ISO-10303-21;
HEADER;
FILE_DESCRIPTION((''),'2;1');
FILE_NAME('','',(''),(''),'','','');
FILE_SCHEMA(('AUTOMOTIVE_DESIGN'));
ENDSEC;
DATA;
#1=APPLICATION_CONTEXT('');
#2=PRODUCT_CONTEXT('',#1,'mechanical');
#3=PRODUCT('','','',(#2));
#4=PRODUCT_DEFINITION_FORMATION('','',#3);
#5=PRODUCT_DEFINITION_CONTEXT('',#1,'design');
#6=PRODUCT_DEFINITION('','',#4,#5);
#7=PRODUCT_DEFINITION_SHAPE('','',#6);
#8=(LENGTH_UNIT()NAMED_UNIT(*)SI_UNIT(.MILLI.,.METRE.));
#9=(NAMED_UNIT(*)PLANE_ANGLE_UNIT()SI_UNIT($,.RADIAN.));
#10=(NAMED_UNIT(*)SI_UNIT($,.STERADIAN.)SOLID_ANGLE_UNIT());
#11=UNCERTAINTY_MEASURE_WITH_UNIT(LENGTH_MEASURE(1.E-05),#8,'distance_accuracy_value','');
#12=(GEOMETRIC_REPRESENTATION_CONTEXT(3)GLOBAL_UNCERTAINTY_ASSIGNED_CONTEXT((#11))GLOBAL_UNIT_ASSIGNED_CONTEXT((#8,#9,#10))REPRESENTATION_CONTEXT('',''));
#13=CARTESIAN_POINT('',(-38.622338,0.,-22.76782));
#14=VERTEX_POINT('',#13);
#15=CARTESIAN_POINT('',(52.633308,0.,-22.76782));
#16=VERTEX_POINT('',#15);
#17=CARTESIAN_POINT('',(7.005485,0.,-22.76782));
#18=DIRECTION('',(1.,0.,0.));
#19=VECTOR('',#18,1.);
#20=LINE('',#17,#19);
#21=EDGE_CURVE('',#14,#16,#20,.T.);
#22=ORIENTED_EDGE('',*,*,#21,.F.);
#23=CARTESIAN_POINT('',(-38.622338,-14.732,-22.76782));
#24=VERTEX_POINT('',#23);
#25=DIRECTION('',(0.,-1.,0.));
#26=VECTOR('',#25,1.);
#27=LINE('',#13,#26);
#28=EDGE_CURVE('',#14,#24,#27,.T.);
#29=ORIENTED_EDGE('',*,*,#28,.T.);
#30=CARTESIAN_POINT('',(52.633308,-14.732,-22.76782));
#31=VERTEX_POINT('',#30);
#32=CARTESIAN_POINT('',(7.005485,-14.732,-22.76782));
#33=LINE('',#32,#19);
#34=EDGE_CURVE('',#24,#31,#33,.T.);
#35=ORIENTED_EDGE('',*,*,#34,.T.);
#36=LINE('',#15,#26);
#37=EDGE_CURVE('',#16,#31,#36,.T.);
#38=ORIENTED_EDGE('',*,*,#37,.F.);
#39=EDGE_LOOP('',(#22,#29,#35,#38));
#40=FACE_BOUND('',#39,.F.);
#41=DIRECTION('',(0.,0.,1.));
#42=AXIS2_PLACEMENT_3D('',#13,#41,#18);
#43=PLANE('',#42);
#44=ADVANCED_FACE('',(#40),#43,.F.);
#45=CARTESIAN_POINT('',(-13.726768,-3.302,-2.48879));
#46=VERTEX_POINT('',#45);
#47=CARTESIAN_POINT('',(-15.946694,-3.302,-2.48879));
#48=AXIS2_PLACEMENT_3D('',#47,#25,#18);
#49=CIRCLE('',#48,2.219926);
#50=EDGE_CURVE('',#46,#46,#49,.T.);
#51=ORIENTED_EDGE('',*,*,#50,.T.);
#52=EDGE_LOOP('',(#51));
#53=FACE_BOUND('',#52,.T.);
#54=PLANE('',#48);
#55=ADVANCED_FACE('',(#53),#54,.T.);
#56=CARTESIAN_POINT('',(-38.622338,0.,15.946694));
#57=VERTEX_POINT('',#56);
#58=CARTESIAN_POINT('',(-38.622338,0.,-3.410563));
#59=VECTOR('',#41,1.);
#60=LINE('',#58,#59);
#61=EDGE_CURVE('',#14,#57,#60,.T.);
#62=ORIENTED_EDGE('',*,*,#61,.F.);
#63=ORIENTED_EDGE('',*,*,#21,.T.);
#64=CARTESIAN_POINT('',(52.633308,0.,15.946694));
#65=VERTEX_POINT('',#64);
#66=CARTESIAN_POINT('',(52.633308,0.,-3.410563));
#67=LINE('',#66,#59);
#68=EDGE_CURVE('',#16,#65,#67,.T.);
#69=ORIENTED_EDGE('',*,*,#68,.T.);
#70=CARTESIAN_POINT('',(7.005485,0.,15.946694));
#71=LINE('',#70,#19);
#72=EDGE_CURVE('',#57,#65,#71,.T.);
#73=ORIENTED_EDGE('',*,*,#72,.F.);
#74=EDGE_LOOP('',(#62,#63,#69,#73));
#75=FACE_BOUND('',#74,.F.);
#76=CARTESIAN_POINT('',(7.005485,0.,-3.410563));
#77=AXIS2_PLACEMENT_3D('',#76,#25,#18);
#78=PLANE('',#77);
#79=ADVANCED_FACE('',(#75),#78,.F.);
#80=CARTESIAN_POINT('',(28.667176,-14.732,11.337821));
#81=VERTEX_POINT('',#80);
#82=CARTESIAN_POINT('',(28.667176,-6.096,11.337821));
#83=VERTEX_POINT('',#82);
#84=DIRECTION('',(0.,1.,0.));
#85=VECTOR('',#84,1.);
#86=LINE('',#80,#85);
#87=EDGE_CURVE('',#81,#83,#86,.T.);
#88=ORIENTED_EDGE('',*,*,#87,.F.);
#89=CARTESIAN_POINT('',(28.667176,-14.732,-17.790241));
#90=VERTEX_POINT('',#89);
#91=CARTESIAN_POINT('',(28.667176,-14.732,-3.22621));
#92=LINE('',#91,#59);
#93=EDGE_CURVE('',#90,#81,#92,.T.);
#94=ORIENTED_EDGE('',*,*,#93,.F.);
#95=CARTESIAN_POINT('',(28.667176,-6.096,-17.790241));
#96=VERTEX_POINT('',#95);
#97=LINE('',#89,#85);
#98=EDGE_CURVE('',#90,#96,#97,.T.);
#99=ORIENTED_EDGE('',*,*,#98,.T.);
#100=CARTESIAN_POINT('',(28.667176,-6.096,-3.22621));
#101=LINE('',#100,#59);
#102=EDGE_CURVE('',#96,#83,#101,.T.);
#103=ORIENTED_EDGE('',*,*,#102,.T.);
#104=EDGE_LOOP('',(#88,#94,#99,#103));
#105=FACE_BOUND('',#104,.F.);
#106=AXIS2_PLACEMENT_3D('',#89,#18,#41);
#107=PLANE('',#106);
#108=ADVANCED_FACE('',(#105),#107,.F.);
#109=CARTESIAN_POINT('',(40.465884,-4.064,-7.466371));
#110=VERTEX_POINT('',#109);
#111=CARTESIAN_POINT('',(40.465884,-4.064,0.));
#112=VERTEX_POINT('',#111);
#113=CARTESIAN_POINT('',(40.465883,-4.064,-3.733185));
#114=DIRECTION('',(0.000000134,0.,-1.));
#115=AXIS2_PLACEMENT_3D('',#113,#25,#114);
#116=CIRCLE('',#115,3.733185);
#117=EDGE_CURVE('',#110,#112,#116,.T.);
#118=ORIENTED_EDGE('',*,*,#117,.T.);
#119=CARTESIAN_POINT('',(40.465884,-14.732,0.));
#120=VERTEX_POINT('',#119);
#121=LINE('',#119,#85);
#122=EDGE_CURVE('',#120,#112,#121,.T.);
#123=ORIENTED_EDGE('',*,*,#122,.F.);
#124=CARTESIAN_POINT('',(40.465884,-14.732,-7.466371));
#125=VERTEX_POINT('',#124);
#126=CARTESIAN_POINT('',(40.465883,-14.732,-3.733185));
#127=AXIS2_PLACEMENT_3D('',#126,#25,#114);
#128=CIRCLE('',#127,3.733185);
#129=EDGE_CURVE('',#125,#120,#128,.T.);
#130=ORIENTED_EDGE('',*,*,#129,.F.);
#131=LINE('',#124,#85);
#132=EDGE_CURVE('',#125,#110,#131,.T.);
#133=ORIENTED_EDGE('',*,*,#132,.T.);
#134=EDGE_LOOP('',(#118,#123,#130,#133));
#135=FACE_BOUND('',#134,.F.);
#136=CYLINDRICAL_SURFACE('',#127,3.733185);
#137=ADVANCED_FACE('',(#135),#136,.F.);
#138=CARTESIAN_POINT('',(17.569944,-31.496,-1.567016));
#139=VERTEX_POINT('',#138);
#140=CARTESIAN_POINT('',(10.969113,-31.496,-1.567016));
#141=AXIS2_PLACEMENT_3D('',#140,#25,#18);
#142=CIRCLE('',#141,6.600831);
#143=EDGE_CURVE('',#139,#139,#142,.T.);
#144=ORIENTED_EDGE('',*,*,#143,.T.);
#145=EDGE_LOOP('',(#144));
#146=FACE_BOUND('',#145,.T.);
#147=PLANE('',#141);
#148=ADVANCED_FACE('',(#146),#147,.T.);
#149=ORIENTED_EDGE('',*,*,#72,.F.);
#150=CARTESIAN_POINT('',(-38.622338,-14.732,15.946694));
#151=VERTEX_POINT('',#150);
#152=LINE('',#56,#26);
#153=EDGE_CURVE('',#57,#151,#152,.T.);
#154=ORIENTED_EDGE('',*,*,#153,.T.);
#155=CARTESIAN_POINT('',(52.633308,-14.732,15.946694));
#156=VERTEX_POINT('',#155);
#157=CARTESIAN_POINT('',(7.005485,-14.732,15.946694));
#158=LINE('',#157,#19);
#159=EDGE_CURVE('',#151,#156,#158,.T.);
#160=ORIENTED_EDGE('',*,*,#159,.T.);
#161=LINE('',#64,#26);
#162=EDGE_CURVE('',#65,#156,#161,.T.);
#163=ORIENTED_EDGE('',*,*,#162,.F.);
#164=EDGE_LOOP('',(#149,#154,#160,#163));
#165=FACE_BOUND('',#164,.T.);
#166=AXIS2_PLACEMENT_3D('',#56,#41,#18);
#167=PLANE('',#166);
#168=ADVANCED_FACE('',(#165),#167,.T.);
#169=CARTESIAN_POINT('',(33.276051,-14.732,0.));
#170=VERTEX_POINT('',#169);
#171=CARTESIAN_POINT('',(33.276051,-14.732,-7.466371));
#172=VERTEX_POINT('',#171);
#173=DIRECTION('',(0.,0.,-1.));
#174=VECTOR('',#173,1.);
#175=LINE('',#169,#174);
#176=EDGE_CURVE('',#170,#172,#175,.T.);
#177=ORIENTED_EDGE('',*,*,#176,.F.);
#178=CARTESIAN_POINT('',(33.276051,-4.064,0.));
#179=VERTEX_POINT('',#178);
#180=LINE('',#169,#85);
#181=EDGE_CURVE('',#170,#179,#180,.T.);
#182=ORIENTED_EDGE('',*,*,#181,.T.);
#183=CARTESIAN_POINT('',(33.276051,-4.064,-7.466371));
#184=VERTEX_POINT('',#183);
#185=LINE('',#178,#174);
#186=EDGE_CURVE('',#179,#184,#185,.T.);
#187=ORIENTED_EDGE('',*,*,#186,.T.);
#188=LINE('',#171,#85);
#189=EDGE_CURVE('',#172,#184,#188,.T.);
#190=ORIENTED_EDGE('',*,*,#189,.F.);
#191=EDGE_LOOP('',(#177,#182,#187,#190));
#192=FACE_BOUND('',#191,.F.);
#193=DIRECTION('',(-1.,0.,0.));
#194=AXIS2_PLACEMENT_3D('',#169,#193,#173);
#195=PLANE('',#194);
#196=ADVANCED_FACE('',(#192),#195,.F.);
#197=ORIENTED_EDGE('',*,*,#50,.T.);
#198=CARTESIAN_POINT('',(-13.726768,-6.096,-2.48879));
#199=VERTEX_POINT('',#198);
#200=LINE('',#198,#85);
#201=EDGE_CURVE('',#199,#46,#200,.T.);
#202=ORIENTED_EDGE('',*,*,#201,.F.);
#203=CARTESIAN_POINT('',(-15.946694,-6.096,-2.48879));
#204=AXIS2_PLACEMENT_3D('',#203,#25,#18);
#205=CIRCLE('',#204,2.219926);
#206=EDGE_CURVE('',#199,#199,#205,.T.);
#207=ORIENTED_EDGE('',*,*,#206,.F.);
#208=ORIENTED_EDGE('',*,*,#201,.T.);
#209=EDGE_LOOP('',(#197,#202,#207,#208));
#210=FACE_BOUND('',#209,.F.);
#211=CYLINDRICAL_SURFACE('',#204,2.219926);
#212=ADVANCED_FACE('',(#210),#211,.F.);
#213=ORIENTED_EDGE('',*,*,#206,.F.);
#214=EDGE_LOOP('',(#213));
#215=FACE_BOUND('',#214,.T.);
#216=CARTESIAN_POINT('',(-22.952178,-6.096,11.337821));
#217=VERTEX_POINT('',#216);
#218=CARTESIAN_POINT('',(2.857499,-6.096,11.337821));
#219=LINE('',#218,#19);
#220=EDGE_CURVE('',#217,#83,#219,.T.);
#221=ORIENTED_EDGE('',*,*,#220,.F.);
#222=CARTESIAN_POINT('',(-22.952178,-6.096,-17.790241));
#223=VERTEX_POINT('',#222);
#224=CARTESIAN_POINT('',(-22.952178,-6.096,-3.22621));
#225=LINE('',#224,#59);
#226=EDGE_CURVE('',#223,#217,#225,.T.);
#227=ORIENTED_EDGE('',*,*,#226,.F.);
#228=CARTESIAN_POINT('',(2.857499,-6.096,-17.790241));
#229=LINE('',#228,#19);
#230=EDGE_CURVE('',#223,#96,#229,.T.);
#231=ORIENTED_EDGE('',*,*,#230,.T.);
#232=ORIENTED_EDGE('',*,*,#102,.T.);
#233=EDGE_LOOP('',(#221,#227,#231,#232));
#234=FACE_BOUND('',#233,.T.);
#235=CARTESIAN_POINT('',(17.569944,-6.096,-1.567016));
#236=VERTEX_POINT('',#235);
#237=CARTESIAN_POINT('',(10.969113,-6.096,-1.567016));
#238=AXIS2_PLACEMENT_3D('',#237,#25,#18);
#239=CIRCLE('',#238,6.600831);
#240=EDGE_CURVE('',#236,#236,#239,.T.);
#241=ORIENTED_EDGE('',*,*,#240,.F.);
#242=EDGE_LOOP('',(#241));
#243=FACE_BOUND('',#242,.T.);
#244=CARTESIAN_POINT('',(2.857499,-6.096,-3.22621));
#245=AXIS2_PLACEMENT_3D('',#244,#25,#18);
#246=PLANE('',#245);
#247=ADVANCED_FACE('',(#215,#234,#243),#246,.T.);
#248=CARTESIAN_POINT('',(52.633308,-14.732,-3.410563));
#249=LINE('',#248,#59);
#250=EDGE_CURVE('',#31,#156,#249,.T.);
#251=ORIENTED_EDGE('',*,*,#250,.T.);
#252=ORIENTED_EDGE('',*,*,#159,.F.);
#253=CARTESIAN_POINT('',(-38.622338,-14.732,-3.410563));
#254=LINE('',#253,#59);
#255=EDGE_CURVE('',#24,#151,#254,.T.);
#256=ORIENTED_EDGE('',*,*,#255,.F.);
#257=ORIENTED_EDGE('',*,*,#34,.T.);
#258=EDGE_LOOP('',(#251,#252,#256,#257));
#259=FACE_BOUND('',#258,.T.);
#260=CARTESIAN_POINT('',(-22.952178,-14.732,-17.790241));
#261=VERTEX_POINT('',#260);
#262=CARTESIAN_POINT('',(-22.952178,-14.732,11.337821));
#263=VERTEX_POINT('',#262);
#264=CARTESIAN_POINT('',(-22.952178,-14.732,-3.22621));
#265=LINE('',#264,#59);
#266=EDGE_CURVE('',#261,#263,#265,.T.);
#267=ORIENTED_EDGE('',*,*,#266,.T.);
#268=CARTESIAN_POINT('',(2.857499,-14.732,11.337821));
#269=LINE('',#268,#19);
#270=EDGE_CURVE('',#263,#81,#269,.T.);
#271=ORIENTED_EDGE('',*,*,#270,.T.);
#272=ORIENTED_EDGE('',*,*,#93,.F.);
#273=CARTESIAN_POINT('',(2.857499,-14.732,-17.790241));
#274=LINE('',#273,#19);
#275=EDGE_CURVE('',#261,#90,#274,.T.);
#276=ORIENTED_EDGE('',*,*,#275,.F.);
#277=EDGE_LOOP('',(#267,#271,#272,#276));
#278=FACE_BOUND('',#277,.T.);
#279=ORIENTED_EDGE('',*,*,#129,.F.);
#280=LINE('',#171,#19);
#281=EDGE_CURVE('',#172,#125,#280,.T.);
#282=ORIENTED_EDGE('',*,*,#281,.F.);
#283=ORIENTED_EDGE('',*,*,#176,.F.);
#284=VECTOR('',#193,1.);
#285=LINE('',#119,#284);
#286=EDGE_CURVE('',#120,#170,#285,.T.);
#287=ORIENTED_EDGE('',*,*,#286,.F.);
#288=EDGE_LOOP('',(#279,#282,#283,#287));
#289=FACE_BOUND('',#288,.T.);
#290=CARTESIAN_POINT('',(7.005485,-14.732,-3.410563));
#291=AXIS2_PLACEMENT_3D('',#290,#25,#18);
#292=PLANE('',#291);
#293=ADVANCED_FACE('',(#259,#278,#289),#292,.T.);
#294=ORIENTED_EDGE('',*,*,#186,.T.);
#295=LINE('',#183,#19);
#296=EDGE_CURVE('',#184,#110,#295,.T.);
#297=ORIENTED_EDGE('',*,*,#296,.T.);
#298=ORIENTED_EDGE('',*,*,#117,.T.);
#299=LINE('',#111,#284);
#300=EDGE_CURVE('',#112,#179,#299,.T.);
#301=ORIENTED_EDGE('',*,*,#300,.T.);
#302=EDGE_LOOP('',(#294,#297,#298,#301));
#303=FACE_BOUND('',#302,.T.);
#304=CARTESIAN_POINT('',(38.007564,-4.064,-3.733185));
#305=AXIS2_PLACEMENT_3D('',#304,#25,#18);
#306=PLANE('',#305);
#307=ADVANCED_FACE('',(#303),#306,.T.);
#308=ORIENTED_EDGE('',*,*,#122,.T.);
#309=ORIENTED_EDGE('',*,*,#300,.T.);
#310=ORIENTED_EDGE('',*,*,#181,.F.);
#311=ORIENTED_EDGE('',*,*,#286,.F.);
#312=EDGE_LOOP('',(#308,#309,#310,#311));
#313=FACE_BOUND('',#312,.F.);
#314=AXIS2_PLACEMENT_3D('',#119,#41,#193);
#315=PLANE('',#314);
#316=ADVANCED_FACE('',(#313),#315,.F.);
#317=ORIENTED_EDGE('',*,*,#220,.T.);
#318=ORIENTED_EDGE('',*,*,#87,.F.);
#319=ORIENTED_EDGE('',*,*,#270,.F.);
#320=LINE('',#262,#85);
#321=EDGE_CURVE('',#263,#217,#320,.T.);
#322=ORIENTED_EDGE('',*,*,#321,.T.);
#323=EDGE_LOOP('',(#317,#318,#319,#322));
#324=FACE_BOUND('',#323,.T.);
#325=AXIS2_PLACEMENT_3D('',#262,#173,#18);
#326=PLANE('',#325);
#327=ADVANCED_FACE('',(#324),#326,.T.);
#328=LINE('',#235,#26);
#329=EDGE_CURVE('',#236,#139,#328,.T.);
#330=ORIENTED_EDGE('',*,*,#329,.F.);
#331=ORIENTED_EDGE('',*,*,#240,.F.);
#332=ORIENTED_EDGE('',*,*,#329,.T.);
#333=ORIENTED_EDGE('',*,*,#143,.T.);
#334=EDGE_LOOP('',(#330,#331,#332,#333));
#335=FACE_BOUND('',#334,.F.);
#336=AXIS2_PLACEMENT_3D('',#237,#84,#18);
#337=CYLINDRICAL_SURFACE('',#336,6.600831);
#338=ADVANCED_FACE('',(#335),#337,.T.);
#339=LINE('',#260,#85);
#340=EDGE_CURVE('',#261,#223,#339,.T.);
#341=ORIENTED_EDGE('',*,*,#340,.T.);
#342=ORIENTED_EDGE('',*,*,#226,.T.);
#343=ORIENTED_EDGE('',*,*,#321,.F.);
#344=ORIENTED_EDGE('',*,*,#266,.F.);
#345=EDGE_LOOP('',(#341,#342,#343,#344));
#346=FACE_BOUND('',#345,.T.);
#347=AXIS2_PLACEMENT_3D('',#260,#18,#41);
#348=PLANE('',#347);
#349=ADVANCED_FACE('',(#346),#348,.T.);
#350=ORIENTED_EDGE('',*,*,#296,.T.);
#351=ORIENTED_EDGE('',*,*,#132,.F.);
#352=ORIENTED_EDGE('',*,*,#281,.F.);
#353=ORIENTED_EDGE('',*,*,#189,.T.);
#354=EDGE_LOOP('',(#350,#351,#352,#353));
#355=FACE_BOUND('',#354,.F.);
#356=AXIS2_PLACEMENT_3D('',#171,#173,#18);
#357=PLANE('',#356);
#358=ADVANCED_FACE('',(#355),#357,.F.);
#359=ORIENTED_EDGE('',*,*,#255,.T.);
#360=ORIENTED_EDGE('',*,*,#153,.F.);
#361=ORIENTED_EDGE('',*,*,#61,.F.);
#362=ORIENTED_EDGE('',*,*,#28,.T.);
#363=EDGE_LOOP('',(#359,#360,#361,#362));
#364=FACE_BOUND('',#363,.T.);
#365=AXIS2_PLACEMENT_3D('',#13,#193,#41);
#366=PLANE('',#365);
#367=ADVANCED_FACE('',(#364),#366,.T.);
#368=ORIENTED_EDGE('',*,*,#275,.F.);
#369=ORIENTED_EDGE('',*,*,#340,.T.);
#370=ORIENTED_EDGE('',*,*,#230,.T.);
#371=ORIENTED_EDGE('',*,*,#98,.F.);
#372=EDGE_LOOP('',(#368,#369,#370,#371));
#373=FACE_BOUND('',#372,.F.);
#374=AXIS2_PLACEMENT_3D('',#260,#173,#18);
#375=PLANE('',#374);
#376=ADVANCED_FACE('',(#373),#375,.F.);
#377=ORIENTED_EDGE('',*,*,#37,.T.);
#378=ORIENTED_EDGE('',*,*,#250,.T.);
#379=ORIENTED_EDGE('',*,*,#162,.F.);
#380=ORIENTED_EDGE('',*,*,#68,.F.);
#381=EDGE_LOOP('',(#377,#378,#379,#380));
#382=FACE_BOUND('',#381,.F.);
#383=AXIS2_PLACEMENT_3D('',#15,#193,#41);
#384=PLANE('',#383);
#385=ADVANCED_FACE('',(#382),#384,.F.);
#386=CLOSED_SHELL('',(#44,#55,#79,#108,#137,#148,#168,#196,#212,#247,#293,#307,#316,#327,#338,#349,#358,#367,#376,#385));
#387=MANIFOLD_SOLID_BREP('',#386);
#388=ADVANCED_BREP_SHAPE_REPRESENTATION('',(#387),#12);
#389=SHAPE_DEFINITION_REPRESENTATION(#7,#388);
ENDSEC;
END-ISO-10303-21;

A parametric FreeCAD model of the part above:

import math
import FreeCAD as App
import Part
import Sketcher
from FreeCAD import Vector
Q = App.Units.Quantity

doc = App.newDocument("Part")
body = doc.addObject("PartDesign::Body", "Body")

sketch1 = body.newObject("Sketcher::SketchObject", "Sketch")
sketch1.AttachmentSupport = (doc.getObject("XZ_Plane"), [""])
sketch1.MapMode = "FlatFace"
sketch1.addGeometry([
    Part.LineSegment(Vector(-39, 16, 0), Vector(-39, -23, 0)),
    Part.LineSegment(Vector(-39, -23, 0), Vector(53, -23, 0)),
    Part.LineSegment(Vector(53, -23, 0), Vector(53, 16, 0)),
    Part.LineSegment(Vector(53, 16, 0), Vector(-39, 16, 0)),
], False)
sketch1.addConstraint([
    Sketcher.Constraint("Coincident", 0, 2, 1, 1),
    Sketcher.Constraint("Coincident", 1, 2, 2, 1),
    Sketcher.Constraint("Coincident", 2, 2, 3, 1),
    Sketcher.Constraint("Coincident", 3, 2, 0, 1),
    Sketcher.Constraint("Vertical", 0),
    Sketcher.Constraint("Horizontal", 1),
    Sketcher.Constraint("Vertical", 2),
    Sketcher.Constraint("Horizontal", 3),
    Sketcher.Constraint("DistanceX", 1, 1, 1, 2, Q("91.255646 mm")),
    Sketcher.Constraint("DistanceY", 0, 2, 0, 1, Q("38.714515 mm")),
    Sketcher.Constraint("DistanceY", 0, 2, -1, 1, Q("22.76782 mm")),
    Sketcher.Constraint("DistanceX", 0, 2, -1, 1, Q("38.622338 mm")),
])
pad1 = body.newObject("PartDesign::Pad", "Pad")
pad1.Profile = sketch1
pad1.Length = Q("0.58 in")

sketch2 = body.newObject("Sketcher::SketchObject", "Sketch001")
sketch2.AttachmentSupport = (doc.getObject("XZ_Plane"), [""])
sketch2.MapMode = "FlatFace"
sketch2.AttachmentOffset = App.Placement(Vector(0, 0, 0.58 * 25.4), App.Rotation())
sketch2.addGeometry([
    Part.LineSegment(Vector(-23, 11, 0), Vector(-23, -18, 0)),
    Part.LineSegment(Vector(-23, -18, 0), Vector(29, -18, 0)),
    Part.LineSegment(Vector(29, -18, 0), Vector(29, 11, 0)),
    Part.LineSegment(Vector(29, 11, 0), Vector(-23, 11, 0)),
], False)
sketch2.addConstraint([
    Sketcher.Constraint("Coincident", 0, 2, 1, 1),
    Sketcher.Constraint("Coincident", 1, 2, 2, 1),
    Sketcher.Constraint("Coincident", 2, 2, 3, 1),
    Sketcher.Constraint("Coincident", 3, 2, 0, 1),
    Sketcher.Constraint("Vertical", 0),
    Sketcher.Constraint("Horizontal", 1),
    Sketcher.Constraint("Vertical", 2),
    Sketcher.Constraint("Horizontal", 3),
    Sketcher.Constraint("DistanceY", 0, 2, 0, 1, Q("29.128062 mm")),
    Sketcher.Constraint("DistanceX", 1, 1, 1, 2, Q("51.619354 mm")),
    Sketcher.Constraint("DistanceX", 0, 2, -1, 1, Q("22.952178 mm")),
    Sketcher.Constraint("DistanceY", 0, 2, -1, 1, Q("17.790241 mm")),
])
pocket1 = body.newObject("PartDesign::Pocket", "Pocket")
pocket1.Profile = sketch2
pocket1.Length = Q("0.34 in")

sketch3 = body.newObject("Sketcher::SketchObject", "Sketch002")
sketch3.AttachmentSupport = (doc.getObject("XZ_Plane"), [""])
sketch3.MapMode = "FlatFace"
sketch3.AttachmentOffset = App.Placement(Vector(0, 0, 0.24 * 25.4), App.Rotation())
sketch3.addGeometry(Part.Circle(Vector(-15.9, -2.5, 0), Vector(0, 0, 1), 2.2), False)
sketch3.addConstraint([
    Sketcher.Constraint("Diameter", 0, Q("4.439852 mm")),
    Sketcher.Constraint("DistanceY", 0, 3, -1, 1, Q("2.48879 mm")),
    Sketcher.Constraint("DistanceX", 0, 3, -1, 1, Q("15.946694 mm")),
])
pocket2 = body.newObject("PartDesign::Pocket", "Pocket001")
pocket2.Profile = sketch3
pocket2.Length = Q("0.11 in")

sketch4 = body.newObject("Sketcher::SketchObject", "Sketch003")
sketch4.AttachmentSupport = (doc.getObject("XZ_Plane"), [""])
sketch4.MapMode = "FlatFace"
sketch4.AttachmentOffset = App.Placement(Vector(0, 0, 0.58 * 25.4), App.Rotation())
sketch4.addGeometry([
    Part.LineSegment(Vector(33.3, 0, 0), Vector(33.3, -7.5, 0)),
    Part.LineSegment(Vector(33.3, -7.5, 0), Vector(40.5, -7.5, 0)),
    Part.ArcOfCircle(Part.Circle(Vector(40.5, -3.7, 0), Vector(0, 0, 1), 3.7), math.radians(-90), math.radians(90)),
    Part.LineSegment(Vector(40.5, 0, 0), Vector(33.3, 0, 0)),
], False)
sketch4.addConstraint([
    Sketcher.Constraint("Coincident", 0, 2, 1, 1),
    Sketcher.Constraint("Tangent", 1, 2, 2, 1),
    Sketcher.Constraint("Tangent", 2, 2, 3, 1),
    Sketcher.Constraint("Coincident", 3, 2, 0, 1),
    Sketcher.Constraint("Vertical", 0),
    Sketcher.Constraint("Horizontal", 1),
    Sketcher.Constraint("Horizontal", 3),
    Sketcher.Constraint("PointOnObject", 2, 2, -1),
    Sketcher.Constraint("Radius", 2, Q("3.733185 mm")),
    Sketcher.Constraint("DistanceX", 1, 1, 1, 2, Q("7.189833 mm")),
    Sketcher.Constraint("DistanceX", -1, 1, 0, 2, Q("33.276051 mm")),
])
pocket3 = body.newObject("PartDesign::Pocket", "Pocket002")
pocket3.Profile = sketch4
pocket3.Length = Q("0.42 in")

sketch5 = body.newObject("Sketcher::SketchObject", "Sketch004")
sketch5.AttachmentSupport = (doc.getObject("XZ_Plane"), [""])
sketch5.MapMode = "FlatFace"
sketch5.AttachmentOffset = App.Placement(Vector(0, 0, 0.24 * 25.4), App.Rotation())
sketch5.addGeometry(Part.Circle(Vector(11, -2, 0), Vector(0, 0, 1), 7), False)
sketch5.addConstraint([
    Sketcher.Constraint("Diameter", 0, Q("13.201662 mm")),
    Sketcher.Constraint("DistanceX", -1, 1, 0, 3, Q("10.969113 mm")),
    Sketcher.Constraint("DistanceY", 0, 3, -1, 1, Q("1.567016 mm")),
])
pad2 = body.newObject("PartDesign::Pad", "Pad001")
pad2.Profile = sketch5
pad2.Length = Q("1 in")

doc.recompute()
